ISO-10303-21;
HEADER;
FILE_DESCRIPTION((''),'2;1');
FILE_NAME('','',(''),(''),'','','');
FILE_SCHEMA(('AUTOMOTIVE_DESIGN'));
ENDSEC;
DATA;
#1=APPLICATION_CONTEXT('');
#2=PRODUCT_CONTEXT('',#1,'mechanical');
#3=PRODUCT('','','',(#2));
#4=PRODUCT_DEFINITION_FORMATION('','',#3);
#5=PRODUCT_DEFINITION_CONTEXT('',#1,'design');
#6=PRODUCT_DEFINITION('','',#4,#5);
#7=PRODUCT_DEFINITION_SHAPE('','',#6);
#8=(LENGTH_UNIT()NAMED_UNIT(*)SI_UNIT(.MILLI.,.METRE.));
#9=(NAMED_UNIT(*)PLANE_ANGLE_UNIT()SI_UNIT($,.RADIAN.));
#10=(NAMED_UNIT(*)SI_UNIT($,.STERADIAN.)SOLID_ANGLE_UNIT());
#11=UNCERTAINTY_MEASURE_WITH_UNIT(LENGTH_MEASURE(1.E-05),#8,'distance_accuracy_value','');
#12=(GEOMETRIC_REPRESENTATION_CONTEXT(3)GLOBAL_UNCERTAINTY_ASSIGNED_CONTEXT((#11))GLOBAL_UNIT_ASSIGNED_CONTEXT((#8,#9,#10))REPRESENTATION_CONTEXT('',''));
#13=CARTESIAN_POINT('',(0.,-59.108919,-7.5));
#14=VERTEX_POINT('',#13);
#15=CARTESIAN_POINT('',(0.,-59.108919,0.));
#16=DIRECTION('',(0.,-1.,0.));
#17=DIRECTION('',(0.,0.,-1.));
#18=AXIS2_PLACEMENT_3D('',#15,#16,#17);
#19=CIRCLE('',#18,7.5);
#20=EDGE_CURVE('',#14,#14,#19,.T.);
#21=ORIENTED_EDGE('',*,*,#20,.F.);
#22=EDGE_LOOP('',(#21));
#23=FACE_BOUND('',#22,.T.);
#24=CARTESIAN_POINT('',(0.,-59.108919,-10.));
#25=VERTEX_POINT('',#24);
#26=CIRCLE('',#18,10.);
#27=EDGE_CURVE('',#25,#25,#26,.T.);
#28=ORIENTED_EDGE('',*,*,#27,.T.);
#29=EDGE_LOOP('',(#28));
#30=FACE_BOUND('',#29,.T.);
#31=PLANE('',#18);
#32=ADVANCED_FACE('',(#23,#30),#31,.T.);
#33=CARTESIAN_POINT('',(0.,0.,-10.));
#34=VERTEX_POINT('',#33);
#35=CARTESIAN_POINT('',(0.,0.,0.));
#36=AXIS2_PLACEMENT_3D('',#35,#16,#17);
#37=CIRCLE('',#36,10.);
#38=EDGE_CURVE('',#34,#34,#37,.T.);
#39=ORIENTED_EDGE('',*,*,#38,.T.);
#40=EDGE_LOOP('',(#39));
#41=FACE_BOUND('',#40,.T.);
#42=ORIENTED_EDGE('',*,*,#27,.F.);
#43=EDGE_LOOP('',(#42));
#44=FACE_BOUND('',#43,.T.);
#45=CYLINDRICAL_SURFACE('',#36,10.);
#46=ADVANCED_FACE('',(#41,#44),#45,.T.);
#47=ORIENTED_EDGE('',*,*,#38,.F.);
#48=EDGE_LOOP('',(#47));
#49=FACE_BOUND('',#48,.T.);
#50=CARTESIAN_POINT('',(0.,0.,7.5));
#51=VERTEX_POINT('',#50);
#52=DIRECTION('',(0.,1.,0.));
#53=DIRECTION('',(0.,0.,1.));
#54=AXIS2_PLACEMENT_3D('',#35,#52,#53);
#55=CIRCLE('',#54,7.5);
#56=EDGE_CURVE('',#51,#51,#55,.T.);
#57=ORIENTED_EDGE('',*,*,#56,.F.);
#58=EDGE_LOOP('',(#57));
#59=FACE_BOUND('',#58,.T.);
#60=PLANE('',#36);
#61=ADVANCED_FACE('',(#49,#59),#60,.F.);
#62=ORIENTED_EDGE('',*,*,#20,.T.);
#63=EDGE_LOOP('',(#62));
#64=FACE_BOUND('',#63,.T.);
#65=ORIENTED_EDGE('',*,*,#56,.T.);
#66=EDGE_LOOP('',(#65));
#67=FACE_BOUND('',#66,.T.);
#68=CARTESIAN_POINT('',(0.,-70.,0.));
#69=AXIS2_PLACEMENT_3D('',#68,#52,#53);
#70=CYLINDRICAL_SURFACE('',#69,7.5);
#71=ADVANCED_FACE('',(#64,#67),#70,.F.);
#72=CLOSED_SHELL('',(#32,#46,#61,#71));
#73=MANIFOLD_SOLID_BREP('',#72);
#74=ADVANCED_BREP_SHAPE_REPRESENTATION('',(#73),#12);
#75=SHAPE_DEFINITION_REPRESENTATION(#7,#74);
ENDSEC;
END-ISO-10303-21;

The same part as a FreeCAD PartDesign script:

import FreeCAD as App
import Part
import Sketcher

V = App.Vector

doc = App.newDocument("Part")
body = doc.addObject("PartDesign::Body", "Body")

sketch1 = body.newObject("Sketcher::SketchObject", "Sketch")
sketch1.AttachmentSupport = (doc.getObject("XZ_Plane"), [""])
sketch1.MapMode = "FlatFace"
sketch1.addGeometry(Part.Circle(V(0, 0, 0), V(0, 0, 1), 10), False)
sketch1.addConstraint([
    Sketcher.Constraint("Coincident", 0, 3, -1, 1),
    Sketcher.Constraint("Diameter", 0, 20.0),
])

sketch2 = body.newObject("Sketcher::SketchObject", "Sketch001")
sketch2.AttachmentSupport = (doc.getObject("XY_Plane"), [""])
sketch2.MapMode = "FlatFace"
sketch2.addGeometry(Part.LineSegment(V(0, 0, 0), V(0, -59, 0)), False)
sketch2.addConstraint([
    Sketcher.Constraint("Vertical", 0),
    Sketcher.Constraint("Coincident", 0, 1, -1, 1),
    Sketcher.Constraint("DistanceY", 0, 2, 0, 1, 59.108919),
])
doc.recompute()

additivepipe = body.newObject("PartDesign::AdditivePipe", "AdditivePipe")
additivepipe.Profile = sketch1
additivepipe.Spine = (sketch2, ["Edge1"])

sketch3 = body.newObject("Sketcher::SketchObject", "Sketch002")
sketch3.AttachmentSupport = (doc.getObject("XZ_Plane"), [""])
sketch3.MapMode = "FlatFace"
sketch3.addGeometry(Part.Circle(V(0, 0, 0), V(0, 0, 1), 8), False)
sketch3.addConstraint([
    Sketcher.Constraint("Coincident", 0, 3, -1, 1),
    Sketcher.Constraint("Diameter", 0, 15.0),
])
pocket1 = body.newObject("PartDesign::Pocket", "Pocket")
pocket1.Profile = sketch3
pocket1.Length = 70
pocket1.Reversed = True

doc.recompute()
